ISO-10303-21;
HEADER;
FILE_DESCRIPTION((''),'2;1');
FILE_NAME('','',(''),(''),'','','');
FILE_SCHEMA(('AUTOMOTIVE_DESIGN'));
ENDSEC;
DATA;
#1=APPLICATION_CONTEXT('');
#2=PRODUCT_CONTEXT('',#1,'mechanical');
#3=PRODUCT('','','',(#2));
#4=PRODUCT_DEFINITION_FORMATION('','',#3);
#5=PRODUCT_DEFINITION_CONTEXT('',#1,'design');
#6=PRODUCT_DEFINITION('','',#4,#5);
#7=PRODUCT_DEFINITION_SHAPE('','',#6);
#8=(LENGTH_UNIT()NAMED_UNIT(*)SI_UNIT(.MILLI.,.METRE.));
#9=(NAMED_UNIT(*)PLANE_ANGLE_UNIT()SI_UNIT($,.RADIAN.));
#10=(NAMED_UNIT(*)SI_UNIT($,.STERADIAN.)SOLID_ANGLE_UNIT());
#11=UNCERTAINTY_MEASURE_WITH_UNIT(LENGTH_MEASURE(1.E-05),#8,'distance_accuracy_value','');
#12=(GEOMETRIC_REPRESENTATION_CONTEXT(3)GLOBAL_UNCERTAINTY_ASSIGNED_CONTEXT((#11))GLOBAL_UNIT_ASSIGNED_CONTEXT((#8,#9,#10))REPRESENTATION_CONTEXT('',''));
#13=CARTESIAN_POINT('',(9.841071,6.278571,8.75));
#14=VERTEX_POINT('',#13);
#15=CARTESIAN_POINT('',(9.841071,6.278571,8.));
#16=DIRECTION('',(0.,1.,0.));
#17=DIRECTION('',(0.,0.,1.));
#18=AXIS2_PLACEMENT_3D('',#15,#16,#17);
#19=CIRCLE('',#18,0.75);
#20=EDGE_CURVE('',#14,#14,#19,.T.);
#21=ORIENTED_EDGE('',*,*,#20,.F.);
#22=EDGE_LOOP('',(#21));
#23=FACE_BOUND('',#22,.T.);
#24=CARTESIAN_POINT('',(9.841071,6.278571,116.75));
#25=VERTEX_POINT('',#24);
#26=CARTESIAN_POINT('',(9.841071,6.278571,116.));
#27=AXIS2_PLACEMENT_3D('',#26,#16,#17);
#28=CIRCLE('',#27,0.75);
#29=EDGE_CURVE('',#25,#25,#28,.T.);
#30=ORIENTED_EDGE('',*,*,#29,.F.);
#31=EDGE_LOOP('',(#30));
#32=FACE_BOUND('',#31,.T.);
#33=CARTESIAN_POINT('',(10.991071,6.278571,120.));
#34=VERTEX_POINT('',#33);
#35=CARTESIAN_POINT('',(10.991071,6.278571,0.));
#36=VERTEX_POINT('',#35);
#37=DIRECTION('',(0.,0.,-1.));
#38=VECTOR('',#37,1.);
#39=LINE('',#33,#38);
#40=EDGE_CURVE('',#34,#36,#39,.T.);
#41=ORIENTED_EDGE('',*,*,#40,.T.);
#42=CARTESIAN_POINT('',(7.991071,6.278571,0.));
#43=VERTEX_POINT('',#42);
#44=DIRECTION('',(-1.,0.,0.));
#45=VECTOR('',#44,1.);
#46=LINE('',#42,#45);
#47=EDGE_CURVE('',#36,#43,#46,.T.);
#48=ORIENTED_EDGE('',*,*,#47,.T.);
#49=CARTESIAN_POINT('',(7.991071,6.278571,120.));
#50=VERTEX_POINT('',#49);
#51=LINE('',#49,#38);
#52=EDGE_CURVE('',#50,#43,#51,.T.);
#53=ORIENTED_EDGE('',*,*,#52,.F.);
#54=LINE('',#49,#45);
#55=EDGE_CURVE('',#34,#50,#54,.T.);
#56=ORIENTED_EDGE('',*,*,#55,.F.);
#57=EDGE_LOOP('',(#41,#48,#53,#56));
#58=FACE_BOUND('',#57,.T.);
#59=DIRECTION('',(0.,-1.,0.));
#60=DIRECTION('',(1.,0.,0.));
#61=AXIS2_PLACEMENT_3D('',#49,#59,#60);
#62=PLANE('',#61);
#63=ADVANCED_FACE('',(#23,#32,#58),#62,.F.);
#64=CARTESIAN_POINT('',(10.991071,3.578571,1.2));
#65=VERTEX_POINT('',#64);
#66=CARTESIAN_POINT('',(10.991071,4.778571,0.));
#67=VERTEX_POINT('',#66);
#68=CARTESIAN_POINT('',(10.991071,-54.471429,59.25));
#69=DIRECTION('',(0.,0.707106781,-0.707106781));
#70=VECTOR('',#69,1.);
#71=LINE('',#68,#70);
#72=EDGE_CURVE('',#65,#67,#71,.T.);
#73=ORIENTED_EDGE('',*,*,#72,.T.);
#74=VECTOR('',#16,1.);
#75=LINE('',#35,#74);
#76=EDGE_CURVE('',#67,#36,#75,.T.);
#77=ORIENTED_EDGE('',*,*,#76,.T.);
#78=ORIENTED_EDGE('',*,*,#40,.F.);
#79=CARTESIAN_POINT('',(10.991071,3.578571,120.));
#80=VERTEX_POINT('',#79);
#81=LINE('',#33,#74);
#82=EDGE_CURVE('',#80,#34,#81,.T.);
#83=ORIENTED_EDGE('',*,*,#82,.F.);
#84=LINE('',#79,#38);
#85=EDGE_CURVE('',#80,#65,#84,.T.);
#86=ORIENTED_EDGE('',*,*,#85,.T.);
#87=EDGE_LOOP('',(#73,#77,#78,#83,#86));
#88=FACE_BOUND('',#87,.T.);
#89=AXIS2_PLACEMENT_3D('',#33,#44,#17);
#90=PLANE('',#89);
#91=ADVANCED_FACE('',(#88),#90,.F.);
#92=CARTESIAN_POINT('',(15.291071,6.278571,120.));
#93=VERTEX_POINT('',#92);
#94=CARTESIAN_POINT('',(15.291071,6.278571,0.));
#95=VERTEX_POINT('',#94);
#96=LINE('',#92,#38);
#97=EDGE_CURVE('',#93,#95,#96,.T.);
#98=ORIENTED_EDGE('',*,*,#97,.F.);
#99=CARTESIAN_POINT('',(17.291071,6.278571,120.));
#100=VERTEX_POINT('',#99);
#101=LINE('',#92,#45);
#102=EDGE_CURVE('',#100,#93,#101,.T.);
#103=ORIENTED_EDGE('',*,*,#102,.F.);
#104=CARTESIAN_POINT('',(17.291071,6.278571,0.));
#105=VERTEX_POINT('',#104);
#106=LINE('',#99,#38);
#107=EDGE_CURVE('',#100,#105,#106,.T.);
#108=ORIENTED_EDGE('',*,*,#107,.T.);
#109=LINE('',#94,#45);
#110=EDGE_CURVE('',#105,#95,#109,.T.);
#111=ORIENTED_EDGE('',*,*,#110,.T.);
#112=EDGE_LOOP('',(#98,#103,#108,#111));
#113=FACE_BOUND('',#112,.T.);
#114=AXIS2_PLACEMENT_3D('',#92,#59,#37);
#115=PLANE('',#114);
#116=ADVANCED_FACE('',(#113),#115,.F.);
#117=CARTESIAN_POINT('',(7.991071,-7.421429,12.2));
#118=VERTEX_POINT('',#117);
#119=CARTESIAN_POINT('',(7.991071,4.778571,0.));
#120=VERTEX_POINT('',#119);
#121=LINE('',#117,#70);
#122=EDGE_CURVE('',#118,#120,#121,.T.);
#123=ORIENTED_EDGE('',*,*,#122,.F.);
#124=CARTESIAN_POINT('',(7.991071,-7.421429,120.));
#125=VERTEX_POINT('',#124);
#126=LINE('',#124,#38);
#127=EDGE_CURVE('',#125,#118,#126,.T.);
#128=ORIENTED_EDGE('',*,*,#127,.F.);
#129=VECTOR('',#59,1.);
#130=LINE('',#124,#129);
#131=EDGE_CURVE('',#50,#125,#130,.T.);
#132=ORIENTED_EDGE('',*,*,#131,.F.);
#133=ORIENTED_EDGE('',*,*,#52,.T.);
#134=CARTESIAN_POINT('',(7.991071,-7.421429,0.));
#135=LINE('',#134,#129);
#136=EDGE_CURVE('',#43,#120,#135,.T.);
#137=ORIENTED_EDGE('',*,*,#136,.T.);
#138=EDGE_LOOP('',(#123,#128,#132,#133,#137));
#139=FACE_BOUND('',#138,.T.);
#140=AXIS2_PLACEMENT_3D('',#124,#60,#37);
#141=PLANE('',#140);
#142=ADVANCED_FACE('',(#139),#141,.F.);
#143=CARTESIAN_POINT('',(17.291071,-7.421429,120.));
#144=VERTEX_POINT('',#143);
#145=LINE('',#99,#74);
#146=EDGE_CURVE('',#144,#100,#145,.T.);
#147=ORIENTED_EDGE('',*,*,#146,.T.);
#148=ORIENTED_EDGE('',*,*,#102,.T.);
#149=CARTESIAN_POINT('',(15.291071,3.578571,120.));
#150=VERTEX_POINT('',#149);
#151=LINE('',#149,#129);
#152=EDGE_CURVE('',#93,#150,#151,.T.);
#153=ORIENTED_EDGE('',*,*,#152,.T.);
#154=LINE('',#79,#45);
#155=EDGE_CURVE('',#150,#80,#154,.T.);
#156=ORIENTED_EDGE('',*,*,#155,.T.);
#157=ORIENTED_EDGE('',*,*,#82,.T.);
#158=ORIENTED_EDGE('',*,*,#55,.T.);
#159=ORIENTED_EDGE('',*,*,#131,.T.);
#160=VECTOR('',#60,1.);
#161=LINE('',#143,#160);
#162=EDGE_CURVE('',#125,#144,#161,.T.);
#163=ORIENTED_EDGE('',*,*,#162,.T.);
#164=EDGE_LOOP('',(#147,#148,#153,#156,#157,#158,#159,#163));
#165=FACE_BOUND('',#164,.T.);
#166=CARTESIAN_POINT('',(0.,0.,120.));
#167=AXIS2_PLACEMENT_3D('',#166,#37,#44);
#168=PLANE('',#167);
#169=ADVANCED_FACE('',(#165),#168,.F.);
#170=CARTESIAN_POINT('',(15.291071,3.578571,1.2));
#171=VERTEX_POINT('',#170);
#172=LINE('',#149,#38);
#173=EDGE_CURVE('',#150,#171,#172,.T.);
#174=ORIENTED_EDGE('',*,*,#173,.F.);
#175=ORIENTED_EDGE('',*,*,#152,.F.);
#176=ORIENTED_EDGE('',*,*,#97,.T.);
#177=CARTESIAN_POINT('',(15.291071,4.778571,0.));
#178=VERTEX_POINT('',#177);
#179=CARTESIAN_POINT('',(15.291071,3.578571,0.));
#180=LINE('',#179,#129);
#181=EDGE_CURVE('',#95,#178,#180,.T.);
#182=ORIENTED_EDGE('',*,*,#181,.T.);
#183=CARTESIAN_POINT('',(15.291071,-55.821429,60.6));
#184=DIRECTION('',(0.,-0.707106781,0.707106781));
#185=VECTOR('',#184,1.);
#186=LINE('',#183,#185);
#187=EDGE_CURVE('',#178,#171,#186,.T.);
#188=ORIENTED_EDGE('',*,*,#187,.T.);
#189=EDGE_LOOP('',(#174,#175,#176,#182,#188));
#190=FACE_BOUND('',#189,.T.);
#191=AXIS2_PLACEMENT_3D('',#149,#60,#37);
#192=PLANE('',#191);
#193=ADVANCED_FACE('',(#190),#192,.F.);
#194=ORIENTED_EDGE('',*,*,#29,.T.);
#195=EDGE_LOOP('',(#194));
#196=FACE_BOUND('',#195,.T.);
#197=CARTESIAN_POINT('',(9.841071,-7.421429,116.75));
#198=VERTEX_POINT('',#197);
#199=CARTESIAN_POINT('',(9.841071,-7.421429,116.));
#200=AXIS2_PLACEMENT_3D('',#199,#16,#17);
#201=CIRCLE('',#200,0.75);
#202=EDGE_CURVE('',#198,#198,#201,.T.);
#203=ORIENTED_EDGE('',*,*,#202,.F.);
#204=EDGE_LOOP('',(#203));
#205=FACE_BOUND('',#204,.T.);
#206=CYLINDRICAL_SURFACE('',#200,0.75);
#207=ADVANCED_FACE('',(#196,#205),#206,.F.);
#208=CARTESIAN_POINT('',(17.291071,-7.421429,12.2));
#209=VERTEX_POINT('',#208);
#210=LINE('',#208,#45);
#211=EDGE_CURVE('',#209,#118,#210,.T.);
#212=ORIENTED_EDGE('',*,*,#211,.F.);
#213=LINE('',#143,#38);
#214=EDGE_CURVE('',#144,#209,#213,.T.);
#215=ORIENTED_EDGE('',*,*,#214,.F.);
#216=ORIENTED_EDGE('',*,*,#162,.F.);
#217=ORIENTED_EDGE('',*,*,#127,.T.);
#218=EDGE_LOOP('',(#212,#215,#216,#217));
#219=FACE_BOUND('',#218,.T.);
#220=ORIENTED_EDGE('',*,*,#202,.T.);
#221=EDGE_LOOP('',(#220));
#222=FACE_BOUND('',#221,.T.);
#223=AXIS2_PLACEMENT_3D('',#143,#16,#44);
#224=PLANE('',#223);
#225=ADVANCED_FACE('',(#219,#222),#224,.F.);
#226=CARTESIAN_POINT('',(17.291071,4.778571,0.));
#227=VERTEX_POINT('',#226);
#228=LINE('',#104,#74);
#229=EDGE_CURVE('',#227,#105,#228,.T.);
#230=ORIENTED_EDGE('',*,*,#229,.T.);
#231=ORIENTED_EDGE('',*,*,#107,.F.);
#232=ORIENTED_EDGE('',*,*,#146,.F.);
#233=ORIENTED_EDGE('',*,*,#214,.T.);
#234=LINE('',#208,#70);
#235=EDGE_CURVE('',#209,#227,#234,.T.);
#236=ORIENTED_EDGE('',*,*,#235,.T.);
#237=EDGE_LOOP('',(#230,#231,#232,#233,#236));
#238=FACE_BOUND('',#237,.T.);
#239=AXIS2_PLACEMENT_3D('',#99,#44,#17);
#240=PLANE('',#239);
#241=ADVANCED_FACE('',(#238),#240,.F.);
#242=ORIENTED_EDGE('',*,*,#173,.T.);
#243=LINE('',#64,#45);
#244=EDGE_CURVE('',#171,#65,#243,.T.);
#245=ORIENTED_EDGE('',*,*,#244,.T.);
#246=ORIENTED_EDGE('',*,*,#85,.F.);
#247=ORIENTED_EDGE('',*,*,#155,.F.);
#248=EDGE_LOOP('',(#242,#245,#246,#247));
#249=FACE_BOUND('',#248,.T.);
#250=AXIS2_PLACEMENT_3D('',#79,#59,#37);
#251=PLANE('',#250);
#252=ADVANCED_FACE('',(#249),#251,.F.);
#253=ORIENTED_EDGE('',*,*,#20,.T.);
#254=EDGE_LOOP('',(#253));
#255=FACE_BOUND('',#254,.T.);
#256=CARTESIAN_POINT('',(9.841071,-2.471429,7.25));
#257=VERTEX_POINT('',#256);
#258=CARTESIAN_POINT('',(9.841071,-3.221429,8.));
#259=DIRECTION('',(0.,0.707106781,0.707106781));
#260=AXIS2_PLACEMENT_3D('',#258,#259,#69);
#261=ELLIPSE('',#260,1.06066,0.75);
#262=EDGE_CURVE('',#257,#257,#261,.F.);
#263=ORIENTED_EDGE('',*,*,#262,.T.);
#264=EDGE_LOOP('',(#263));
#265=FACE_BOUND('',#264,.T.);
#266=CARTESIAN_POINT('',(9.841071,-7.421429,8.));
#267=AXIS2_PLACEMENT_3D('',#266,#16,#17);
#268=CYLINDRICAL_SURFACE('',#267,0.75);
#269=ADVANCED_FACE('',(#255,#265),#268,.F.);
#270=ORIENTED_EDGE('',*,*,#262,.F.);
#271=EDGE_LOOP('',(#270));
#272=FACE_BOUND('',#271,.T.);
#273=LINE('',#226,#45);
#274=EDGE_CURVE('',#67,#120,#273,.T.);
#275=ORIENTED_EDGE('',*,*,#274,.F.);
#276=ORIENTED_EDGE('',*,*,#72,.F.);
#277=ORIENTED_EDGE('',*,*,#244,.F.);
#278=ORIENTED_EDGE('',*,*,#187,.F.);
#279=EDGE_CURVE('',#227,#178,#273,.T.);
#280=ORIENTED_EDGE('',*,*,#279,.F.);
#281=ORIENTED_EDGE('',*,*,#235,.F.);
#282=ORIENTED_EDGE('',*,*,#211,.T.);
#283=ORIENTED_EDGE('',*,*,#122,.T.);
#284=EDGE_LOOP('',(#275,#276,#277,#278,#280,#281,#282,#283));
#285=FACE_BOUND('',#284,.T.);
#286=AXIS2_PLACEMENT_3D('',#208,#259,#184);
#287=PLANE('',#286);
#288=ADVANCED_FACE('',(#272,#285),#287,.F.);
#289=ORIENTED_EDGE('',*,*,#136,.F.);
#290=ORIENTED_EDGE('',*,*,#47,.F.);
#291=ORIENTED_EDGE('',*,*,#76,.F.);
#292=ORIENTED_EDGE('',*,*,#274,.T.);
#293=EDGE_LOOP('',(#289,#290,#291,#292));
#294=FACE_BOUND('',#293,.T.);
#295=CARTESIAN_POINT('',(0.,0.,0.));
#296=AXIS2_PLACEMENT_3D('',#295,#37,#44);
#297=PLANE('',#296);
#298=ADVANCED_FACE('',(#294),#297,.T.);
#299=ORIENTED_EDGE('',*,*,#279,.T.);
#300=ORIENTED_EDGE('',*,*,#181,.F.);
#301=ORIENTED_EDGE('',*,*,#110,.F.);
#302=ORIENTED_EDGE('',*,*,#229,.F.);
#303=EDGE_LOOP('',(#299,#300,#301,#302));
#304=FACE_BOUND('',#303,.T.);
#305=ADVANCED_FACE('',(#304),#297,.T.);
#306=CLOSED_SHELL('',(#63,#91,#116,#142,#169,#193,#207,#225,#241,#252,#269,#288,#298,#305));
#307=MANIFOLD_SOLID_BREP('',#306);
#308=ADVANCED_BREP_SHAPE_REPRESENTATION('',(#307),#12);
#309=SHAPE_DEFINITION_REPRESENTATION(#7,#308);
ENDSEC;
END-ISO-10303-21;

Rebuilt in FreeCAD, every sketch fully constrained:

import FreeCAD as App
import Part
import Sketcher

V = App.Vector


def add_polygon(sketch, points):
    """Adds a closed chain of lines whose ends are joined by coincident constraints."""
    first, n = sketch.GeometryCount, len(points)
    for a, b in zip(points, points[1:] + points[:1]):
        sketch.addGeometry(Part.LineSegment(App.Vector(*a, 0), App.Vector(*b, 0)), False)
    for i in range(n):
        sketch.addConstraint(Sketcher.Constraint("Coincident", first + i, 2, first + (i + 1) % n, 1))

doc = App.newDocument("Part")
body = doc.addObject("PartDesign::Body", "Body")

# Sketch on XY plane
sketch1 = body.newObject("Sketcher::SketchObject", "Sketch")
sketch1.AttachmentSupport = (doc.getObject("XY_Plane"), [""])
sketch1.MapMode = "FlatFace"
add_polygon(sketch1, [(11, 6.3), (8, 6.3), (8, -7.4), (17.3, -7.4), (17.3, 6.3), (15.3, 6.3), (15.3, 3.6), (11, 3.6)])  # lines 0-7
sketch1.addConstraint([
    Sketcher.Constraint("Horizontal", 0),
    Sketcher.Constraint("Vertical", 1),
    Sketcher.Constraint("Horizontal", 2),
    Sketcher.Constraint("Vertical", 3),
    Sketcher.Constraint("Horizontal", 4),
    Sketcher.Constraint("Vertical", 5),
    Sketcher.Constraint("Horizontal", 6),
    Sketcher.Constraint("Vertical", 7),
    Sketcher.Constraint("Horizontal", 0, 2, 3, 2),
    Sketcher.Constraint("DistanceX", 0, 2, 0, 1, 3.0),
    Sketcher.Constraint("DistanceX", 4, 2, 4, 1, 2.0),
    Sketcher.Constraint("DistanceX", 2, 1, 2, 2, 9.3),
    Sketcher.Constraint("DistanceY", 1, 2, 1, 1, 13.7),
    Sketcher.Constraint("DistanceY", 5, 2, 5, 1, 2.7),
    Sketcher.Constraint("DistanceX", -1, 1, 0, 2, 7.991071),
    Sketcher.Constraint("DistanceY", -1, 1, 0, 2, 6.278571),
])
pad1 = body.newObject("PartDesign::Pad", "Pad")
pad1.Profile = sketch1
pad1.Length = 120

# Sketch on XZ plane
sketch2 = body.newObject("Sketcher::SketchObject", "Sketch001")
sketch2.AttachmentSupport = (doc.getObject("XZ_Plane"), [""])
sketch2.MapMode = "FlatFace"
sketch2.AttachmentOffset = App.Placement(V(0, 0, -6.278571), App.Rotation())
sketch2.addGeometry(Part.Circle(V(9.8, 8, 0), V(0, 0, 1), 0.8), False)
sketch2.addConstraint([
    Sketcher.Constraint("Diameter", 0, 1.5),
    Sketcher.Constraint("DistanceY", -1, 1, 0, 3, 8.0),
    Sketcher.Constraint("DistanceX", -1, 1, 0, 3, 9.841071),
])
pocket1 = body.newObject("PartDesign::Pocket", "Pocket")
pocket1.Profile = sketch2
pocket1.Type = "ThroughAll"
pocket1.Reversed = True

# Sketch on XZ plane
sketch3 = body.newObject("Sketcher::SketchObject", "Sketch002")
sketch3.AttachmentSupport = (doc.getObject("XZ_Plane"), [""])
sketch3.MapMode = "FlatFace"
sketch3.AttachmentOffset = App.Placement(V(0, 0, -6.278571), App.Rotation())
sketch3.addGeometry(Part.Circle(V(9.8, 116, 0), V(0, 0, 1), 0.8), False)
sketch3.addConstraint([
    Sketcher.Constraint("Diameter", 0, 1.5),
    Sketcher.Constraint("DistanceY", -1, 1, 0, 3, 116.0),
    Sketcher.Constraint("DistanceX", -1, 1, 0, 3, 9.841071),
])
pocket2 = body.newObject("PartDesign::Pocket", "Pocket001")
pocket2.Profile = sketch3
pocket2.Type = "ThroughAll"
pocket2.Reversed = True

# Sketch on YZ plane
sketch4 = body.newObject("Sketcher::SketchObject", "Sketch003")
sketch4.AttachmentSupport = (doc.getObject("YZ_Plane"), [""])
sketch4.MapMode = "FlatFace"
sketch4.AttachmentOffset = App.Placement(V(0, 0, 7.991071), App.Rotation())
add_polygon(sketch4, [(-7, 12), (5, 0), (-7, 0)])  # lines 0-2
sketch4.addConstraint([
    Sketcher.Constraint("Horizontal", 1),
    Sketcher.Constraint("Vertical", 2),
    Sketcher.Constraint("PointOnObject", 0, 2, -1),
    Sketcher.Constraint("Equal", 1, 2),
    Sketcher.Constraint("DistanceX", 1, 2, 1, 1, 12.2),
    Sketcher.Constraint("DistanceX", -1, 1, 0, 2, 4.778571),
])
pocket3 = body.newObject("PartDesign::Pocket", "Pocket002")
pocket3.Profile = sketch4
pocket3.Type = "ThroughAll"
pocket3.Reversed = True

doc.recompute()
